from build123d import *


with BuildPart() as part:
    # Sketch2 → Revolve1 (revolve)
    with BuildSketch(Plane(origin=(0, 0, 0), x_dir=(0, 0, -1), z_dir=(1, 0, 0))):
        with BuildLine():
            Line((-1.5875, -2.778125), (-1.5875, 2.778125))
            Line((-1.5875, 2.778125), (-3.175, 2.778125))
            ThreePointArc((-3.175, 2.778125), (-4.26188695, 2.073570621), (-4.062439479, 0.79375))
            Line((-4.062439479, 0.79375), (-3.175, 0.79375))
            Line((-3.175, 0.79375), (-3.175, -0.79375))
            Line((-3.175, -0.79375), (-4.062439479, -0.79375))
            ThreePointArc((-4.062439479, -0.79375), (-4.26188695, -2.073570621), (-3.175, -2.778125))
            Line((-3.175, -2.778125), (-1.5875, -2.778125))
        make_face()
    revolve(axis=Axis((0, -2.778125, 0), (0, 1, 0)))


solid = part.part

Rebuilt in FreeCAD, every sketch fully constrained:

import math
import FreeCAD as App
import Part
import Sketcher

V = App.Vector
Q = App.Units.Quantity

doc = App.newDocument("Part")
body = doc.addObject("PartDesign::Body", "Body")

sketch1 = body.newObject("Sketcher::SketchObject", "Sketch")
sketch1.AttachmentSupport = (doc.getObject("YZ_Plane"), [""])
sketch1.MapMode = "FlatFace"
sketch1.addGeometry([
    Part.LineSegment(V(-2.8, 1.6, 0), V(2.8, 1.6, 0)),
    Part.LineSegment(V(2.8, 1.6, 0), V(2.8, 3.2, 0)),
    Part.ArcOfCircle(Part.Circle(V(1.6, 3.2, 0), V(0, 0, 1), 1.2), math.radians(0), math.radians(132)),
    Part.LineSegment(V(0.8, 4.1, 0), V(0.8, 3.2, 0)),
    Part.LineSegment(V(0.8, 3.2, 0), V(-0.8, 3.2, 0)),
    Part.LineSegment(V(-0.8, 3.2, 0), V(-0.8, 4.1, 0)),
    Part.ArcOfCircle(Part.Circle(V(-1.6, 3.2, 0), V(0, 0, 1), 1.2), math.radians(48), math.radians(180)),
    Part.LineSegment(V(-2.8, 3.2, 0), V(-2.8, 1.6, 0)),
], False)
sketch1.addConstraint([
    Sketcher.Constraint("Coincident", 0, 2, 1, 1),
    Sketcher.Constraint("Tangent", 1, 2, 2, 1),
    Sketcher.Constraint("Coincident", 2, 2, 3, 1),
    Sketcher.Constraint("Coincident", 3, 2, 4, 1),
    Sketcher.Constraint("Coincident", 4, 2, 5, 1),
    Sketcher.Constraint("Coincident", 5, 2, 6, 1),
    Sketcher.Constraint("Tangent", 6, 2, 7, 1),
    Sketcher.Constraint("Coincident", 7, 2, 0, 1),
    Sketcher.Constraint("Horizontal", 0),
    Sketcher.Constraint("Vertical", 1),
    Sketcher.Constraint("Vertical", 3),
    Sketcher.Constraint("Horizontal", 4),
    Sketcher.Constraint("Vertical", 5),
    Sketcher.Constraint("Vertical", 7),
    Sketcher.Constraint("Equal", 2, 6),
    Sketcher.Constraint("Symmetric", 2, 3, 6, 3, -2),
    Sketcher.Constraint("Horizontal", 1, 2, 3, 2),
    Sketcher.Constraint("Horizontal", 2, 2, 5, 2),
    Sketcher.Constraint("Equal", 4, 1),
    Sketcher.Constraint("Radius", 2, Q("0.046875 in")),
    Sketcher.Constraint("DistanceX", 0, 1, 0, 2, Q("0.21875 in")),
    Sketcher.Constraint("DistanceX", 4, 2, 4, 1, Q("0.0625 in")),
    Sketcher.Constraint("DistanceY", -1, 1, 2, 3, Q("0.125 in")),
])
revolution = body.newObject("PartDesign::Revolution", "Revolution")
revolution.Profile = sketch1
revolution.ReferenceAxis = (sketch1, ["H_Axis"])
revolution.Angle = 360

doc.recompute()
